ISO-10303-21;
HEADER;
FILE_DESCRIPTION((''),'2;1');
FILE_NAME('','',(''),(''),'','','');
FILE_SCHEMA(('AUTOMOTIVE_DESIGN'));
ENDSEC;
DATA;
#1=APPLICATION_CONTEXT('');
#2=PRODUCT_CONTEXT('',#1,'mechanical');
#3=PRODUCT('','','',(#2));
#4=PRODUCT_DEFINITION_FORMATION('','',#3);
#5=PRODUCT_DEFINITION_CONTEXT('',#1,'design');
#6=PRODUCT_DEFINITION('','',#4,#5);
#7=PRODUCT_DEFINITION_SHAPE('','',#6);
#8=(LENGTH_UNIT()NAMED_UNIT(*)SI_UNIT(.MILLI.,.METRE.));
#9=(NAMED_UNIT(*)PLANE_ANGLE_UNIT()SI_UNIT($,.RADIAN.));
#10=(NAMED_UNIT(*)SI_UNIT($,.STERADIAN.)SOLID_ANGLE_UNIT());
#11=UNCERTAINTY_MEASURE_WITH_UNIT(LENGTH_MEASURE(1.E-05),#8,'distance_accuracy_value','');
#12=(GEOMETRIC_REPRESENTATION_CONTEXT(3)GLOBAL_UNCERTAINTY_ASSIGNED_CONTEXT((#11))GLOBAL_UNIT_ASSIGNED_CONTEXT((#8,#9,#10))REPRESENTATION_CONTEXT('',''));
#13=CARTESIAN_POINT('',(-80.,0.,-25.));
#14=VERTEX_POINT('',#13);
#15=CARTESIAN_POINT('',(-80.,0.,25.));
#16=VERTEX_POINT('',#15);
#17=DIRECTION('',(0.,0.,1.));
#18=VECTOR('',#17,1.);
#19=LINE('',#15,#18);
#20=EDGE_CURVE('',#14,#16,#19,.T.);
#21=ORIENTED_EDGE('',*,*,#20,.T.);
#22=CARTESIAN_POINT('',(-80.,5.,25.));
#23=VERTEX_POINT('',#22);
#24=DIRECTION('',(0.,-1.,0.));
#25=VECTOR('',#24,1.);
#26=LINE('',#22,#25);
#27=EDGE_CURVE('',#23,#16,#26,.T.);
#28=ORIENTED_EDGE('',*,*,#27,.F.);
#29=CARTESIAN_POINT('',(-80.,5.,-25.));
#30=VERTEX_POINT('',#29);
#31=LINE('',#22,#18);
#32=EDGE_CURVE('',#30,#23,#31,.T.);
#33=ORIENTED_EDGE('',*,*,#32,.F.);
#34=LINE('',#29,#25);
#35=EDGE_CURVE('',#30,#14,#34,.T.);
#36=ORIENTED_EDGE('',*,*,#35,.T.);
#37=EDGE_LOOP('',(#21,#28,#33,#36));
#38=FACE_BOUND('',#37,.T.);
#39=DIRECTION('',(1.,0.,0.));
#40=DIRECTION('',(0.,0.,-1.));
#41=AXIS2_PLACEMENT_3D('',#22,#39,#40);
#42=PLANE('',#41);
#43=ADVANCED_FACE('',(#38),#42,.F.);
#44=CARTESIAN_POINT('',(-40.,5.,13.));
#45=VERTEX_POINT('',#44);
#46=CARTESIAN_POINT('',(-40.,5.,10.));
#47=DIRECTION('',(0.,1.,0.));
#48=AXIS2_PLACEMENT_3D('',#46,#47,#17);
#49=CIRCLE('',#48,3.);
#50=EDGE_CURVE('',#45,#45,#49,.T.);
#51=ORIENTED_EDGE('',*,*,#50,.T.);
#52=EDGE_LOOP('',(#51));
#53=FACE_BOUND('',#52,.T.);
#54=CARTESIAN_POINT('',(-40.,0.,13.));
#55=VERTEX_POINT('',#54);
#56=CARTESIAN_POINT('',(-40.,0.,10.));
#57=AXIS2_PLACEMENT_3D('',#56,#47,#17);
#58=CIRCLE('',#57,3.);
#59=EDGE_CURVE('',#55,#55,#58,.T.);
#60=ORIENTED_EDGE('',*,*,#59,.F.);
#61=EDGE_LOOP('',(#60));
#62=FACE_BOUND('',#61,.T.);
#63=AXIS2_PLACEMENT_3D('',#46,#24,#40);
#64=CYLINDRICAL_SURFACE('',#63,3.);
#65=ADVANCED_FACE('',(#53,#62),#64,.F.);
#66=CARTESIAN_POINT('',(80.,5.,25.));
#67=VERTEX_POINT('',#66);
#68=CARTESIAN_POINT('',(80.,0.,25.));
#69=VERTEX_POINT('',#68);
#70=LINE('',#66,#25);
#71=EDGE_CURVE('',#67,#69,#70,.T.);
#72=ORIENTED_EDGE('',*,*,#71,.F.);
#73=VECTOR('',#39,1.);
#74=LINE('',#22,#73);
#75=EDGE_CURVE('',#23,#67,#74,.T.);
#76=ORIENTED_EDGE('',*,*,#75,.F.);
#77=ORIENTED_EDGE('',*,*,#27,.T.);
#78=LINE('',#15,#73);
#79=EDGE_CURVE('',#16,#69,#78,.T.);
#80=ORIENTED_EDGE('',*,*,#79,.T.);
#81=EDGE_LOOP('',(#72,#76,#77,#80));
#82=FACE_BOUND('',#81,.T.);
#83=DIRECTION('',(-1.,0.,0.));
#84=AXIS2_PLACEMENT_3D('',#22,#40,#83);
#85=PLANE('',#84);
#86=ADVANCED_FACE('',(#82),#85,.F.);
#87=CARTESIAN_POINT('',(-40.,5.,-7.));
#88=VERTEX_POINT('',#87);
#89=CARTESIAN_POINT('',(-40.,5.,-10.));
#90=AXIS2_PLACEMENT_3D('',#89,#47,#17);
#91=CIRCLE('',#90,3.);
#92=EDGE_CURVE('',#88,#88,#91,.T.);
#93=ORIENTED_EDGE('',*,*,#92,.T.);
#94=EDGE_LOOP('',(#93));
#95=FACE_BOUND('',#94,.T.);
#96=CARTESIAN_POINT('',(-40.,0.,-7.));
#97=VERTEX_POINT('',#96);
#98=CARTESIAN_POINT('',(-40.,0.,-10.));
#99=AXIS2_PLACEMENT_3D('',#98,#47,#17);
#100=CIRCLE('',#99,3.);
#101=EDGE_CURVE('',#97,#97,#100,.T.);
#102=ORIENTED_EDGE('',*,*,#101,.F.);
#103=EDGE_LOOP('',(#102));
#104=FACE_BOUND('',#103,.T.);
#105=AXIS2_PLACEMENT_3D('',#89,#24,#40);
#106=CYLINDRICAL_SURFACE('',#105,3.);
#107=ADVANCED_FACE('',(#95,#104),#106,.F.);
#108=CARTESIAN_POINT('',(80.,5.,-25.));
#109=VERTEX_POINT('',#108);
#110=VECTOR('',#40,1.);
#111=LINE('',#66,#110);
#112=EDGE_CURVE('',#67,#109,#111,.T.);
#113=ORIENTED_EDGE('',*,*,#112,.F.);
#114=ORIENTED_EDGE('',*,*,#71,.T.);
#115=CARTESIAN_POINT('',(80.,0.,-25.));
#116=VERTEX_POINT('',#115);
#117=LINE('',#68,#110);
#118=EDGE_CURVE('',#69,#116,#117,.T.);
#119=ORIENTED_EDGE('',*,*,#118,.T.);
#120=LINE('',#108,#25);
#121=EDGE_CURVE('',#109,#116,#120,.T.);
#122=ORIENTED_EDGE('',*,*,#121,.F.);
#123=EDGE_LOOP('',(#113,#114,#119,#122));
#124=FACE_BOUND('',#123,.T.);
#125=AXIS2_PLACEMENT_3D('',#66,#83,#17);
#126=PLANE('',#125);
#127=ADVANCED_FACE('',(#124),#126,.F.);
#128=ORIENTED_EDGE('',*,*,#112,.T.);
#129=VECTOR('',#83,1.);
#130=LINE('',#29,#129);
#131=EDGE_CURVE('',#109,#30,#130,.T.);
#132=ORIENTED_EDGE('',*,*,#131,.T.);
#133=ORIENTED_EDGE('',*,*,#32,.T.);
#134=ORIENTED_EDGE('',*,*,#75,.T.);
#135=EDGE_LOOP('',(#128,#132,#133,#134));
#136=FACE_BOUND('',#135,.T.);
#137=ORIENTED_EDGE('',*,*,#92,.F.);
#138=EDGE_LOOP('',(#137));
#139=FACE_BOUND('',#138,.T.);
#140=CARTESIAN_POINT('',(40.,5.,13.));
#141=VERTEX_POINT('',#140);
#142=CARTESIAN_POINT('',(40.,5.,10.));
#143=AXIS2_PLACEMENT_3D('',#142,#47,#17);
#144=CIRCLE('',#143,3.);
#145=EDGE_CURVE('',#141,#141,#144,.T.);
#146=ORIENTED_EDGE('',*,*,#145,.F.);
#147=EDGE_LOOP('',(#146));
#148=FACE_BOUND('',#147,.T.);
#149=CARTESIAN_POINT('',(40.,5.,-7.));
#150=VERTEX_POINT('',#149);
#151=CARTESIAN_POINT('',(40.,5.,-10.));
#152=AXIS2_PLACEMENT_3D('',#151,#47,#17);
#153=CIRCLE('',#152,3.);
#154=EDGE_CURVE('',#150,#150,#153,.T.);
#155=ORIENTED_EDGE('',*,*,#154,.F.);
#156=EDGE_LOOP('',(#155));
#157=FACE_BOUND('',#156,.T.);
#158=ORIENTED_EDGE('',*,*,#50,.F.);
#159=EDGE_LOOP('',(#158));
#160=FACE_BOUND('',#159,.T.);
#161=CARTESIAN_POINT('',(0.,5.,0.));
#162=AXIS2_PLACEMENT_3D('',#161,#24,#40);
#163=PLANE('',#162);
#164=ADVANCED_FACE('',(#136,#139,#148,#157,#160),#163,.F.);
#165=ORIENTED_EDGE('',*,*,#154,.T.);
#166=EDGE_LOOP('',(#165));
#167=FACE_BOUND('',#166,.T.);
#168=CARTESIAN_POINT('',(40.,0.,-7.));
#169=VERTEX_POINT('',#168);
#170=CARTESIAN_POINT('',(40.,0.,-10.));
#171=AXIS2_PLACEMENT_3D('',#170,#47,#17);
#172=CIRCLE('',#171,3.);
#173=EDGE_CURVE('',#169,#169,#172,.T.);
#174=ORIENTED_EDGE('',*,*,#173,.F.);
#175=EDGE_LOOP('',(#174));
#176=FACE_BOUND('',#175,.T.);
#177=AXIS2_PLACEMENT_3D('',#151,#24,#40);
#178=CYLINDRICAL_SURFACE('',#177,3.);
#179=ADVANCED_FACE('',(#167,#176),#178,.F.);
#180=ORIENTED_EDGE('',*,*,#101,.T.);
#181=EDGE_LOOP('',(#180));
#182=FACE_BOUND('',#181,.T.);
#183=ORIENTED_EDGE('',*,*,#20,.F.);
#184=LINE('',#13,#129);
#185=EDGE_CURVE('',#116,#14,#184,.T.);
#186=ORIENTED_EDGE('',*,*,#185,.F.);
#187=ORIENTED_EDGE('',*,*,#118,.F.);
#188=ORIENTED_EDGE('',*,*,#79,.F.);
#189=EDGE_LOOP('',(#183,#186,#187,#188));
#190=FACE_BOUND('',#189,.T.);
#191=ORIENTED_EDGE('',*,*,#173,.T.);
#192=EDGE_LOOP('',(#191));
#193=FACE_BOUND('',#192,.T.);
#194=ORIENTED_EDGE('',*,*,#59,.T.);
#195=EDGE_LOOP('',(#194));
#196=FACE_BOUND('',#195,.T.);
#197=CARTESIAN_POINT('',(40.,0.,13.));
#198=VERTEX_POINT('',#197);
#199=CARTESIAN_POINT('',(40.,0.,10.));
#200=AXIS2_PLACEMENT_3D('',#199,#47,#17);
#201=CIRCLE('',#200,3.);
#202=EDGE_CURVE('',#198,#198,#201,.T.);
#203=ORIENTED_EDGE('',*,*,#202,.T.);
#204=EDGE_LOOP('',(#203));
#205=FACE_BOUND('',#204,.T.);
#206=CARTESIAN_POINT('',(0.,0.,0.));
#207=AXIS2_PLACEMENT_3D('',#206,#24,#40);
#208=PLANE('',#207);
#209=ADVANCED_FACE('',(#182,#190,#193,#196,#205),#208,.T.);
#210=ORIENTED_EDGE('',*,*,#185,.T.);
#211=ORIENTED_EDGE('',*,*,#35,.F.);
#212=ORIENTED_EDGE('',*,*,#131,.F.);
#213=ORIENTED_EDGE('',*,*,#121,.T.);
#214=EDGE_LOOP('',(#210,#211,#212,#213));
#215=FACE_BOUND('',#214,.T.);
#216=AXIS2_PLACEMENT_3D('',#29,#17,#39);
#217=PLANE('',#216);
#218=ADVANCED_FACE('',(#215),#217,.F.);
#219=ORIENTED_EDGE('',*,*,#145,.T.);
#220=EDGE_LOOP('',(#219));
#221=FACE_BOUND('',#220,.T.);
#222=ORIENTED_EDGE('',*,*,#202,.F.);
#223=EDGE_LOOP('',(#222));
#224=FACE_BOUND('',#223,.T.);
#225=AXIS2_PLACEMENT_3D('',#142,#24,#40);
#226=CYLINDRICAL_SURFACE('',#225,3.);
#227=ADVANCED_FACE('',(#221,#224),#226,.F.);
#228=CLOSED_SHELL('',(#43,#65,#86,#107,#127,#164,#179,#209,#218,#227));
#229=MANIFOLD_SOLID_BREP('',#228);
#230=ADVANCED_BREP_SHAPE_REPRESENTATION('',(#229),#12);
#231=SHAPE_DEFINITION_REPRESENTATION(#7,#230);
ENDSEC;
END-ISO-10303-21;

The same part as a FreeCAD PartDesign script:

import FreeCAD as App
import Part
import Sketcher

doc = App.newDocument("Part")
params = doc.addObject("Spreadsheet::Sheet", "Params")
for row, (alias, value) in enumerate([
    ("sketch1_diameter", "6 mm"),
    ("sketch1_width", "160 mm"),
    ("sketch1_height", "50 mm"),
    ("pad1_length", "5 mm"),
], start=1):
    params.set(f"A{row}", alias)
    params.set(f"B{row}", "=" + value)
    params.setAlias(f"B{row}", alias)

body = doc.addObject("PartDesign::Body", "Body")

sketch1 = body.newObject("Sketcher::SketchObject", "Sketch")
sketch1.AttachmentSupport = (doc.getObject("XZ_Plane"), [""])
sketch1.MapMode = "FlatFace"
sketch1.addGeometry([
    Part.LineSegment(App.Vector(-80, -25, 0), App.Vector(-80, 25, 0)),
    Part.LineSegment(App.Vector(-80, 25, 0), App.Vector(80, 25, 0)),
    Part.LineSegment(App.Vector(80, 25, 0), App.Vector(80, -25, 0)),
    Part.LineSegment(App.Vector(80, -25, 0), App.Vector(-80, -25, 0)),
    Part.Circle(App.Vector(-40, 10, 0), App.Vector(0, 0, 1), 3),
    Part.Circle(App.Vector(40, 10, 0), App.Vector(0, 0, 1), 3),
    Part.Circle(App.Vector(-40, -10, 0), App.Vector(0, 0, 1), 3),
    Part.Circle(App.Vector(40, -10, 0), App.Vector(0, 0, 1), 3),
], False)
sketch1.addConstraint([
    Sketcher.Constraint("Coincident", 0, 2, 1, 1),
    Sketcher.Constraint("Coincident", 1, 2, 2, 1),
    Sketcher.Constraint("Coincident", 2, 2, 3, 1),
    Sketcher.Constraint("Coincident", 3, 2, 0, 1),
    Sketcher.Constraint("Vertical", 0),
    Sketcher.Constraint("Horizontal", 1),
    Sketcher.Constraint("Vertical", 2),
    Sketcher.Constraint("Horizontal", 3),
    Sketcher.Constraint("Equal", 4, 5),
    Sketcher.Constraint("Equal", 5, 6),
    Sketcher.Constraint("Equal", 6, 7),
    Sketcher.Constraint("Symmetric", 5, 3, 6, 3, -1, 1),
    Sketcher.Constraint("Symmetric", 4, 3, 7, 3, -1, 1),
    Sketcher.Constraint("Symmetric", 0, 2, 2, 2, -1, 1),
    Sketcher.Constraint("Symmetric", 4, 3, 5, 3, -2),
    Sketcher.Constraint("Diameter", 4, 6.0),
    Sketcher.Constraint("DistanceX", 1, 1, 1, 2, 160.0),
    Sketcher.Constraint("DistanceY", 0, 1, 0, 2, 50.0),
    Sketcher.Constraint("DistanceX", 4, 3, -1, 1, 40.0),
    Sketcher.Constraint("DistanceY", -1, 1, 4, 3, 10.0),
])
sketch1.setExpression("Constraints[15]", "Params.sketch1_diameter")
sketch1.setExpression("Constraints[16]", "Params.sketch1_width")
sketch1.setExpression("Constraints[17]", "Params.sketch1_height")
pad1 = body.newObject("PartDesign::Pad", "Pad")
pad1.Profile = sketch1
pad1.setExpression("Length", "Params.pad1_length")
pad1.Reversed = True

doc.recompute()
